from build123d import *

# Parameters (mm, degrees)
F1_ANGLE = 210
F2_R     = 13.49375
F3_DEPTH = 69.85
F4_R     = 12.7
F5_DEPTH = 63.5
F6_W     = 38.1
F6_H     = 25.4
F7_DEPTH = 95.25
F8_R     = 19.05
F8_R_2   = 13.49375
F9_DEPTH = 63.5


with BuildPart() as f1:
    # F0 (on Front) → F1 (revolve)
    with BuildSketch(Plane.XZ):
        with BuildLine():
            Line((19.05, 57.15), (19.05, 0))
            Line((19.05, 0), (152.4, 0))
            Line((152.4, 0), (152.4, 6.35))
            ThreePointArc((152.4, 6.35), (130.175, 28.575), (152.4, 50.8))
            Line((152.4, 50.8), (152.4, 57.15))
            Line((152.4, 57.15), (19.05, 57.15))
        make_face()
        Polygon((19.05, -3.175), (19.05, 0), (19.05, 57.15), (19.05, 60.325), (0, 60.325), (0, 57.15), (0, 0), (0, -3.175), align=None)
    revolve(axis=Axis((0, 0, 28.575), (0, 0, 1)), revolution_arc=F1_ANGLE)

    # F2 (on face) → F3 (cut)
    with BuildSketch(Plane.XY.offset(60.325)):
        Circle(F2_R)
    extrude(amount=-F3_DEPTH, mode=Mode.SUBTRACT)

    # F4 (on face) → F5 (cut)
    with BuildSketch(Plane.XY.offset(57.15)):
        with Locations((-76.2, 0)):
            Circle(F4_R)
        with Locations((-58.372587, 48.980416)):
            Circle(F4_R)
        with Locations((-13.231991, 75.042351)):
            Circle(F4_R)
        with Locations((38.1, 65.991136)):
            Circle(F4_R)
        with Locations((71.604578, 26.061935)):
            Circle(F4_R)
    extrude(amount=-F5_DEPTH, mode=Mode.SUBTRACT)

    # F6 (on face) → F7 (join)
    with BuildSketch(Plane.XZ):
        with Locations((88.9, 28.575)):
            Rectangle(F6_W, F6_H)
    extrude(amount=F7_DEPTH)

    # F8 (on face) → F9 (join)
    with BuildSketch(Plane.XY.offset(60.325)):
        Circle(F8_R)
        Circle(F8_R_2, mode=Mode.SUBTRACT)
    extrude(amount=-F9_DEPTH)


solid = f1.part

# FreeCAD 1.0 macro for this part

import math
import FreeCAD as App
import Part
import Sketcher
Q = App.Units.Quantity

doc = App.newDocument("Part")
params = doc.addObject("Spreadsheet::Sheet", "Params")
for row, (alias, value) in enumerate([
    ("sketch1_height", "2.5 in"),
    ("sketch1_radius", "0.875 in"),
    ("sketch1_width", "5.25 in"),
    ("revolution_angle", "210 deg"),
    ("sketch2_diameter", "1.0625 in"),
    ("pocket1_length", "2.75 in"),
    ("sketch3_diameter", "1 in"),
    ("pocket2_length", "2.5 in"),
    ("sketch4_height", "1 in"),
    ("sketch4_width", "1.5 in"),
    ("pad1_length", "3.75 in"),
    ("sketch5_diameter", "1.5 in"),
    ("sketch5_diameter2", "1.0625 in"),
    ("pad2_length", "2.5 in"),
], start=1):
    params.set(f"A{row}", alias)
    params.set(f"B{row}", "=" + value)
    params.setAlias(f"B{row}", alias)

body = doc.addObject("PartDesign::Body", "Body")

# Sketch on XZ plane
sketch1 = body.newObject("Sketcher::SketchObject", "Sketch")
sketch1.AttachmentSupport = (doc.getObject("XZ_Plane"), [""])
sketch1.MapMode = "FlatFace"
sketch1.addGeometry([
    Part.LineSegment(App.Vector(19.05, 0, 0), App.Vector(152.4, 0, 0)),  # 0
    Part.LineSegment(App.Vector(152.4, 0, 0), App.Vector(152.4, 6.35, 0)),  # 1
    Part.ArcOfCircle(Part.Circle(App.Vector(152.4, 28.575, 0), App.Vector(0, 0, 1), 22.225), math.radians(90), math.radians(270)),  # 2
    Part.LineSegment(App.Vector(152.4, 50.8, 0), App.Vector(152.4, 57.15, 0)),  # 3
    Part.LineSegment(App.Vector(152.4, 57.15, 0), App.Vector(19.05, 57.15, 0)),  # 4
    Part.LineSegment(App.Vector(19.05, 57.15, 0), App.Vector(19.05, 60.325, 0)),  # 5
    Part.LineSegment(App.Vector(19.05, 60.325, 0), App.Vector(0, 60.325, 0)),  # 6
    Part.LineSegment(App.Vector(0, 60.325, 0), App.Vector(0, -3.175, 0)),  # 7
    Part.LineSegment(App.Vector(0, -3.175, 0), App.Vector(19.05, -3.175, 0)),  # 8
    Part.LineSegment(App.Vector(19.05, -3.175, 0), App.Vector(19.05, 0, 0)),  # 9
], False)
sketch1.addConstraint([
    Sketcher.Constraint("Coincident", 0, 2, 1, 1),
    Sketcher.Constraint("Coincident", 1, 2, 2, 2),
    Sketcher.Constraint("Coincident", 2, 1, 3, 1),
    Sketcher.Constraint("Coincident", 3, 2, 4, 1),
    Sketcher.Constraint("Coincident", 4, 2, 5, 1),
    Sketcher.Constraint("Coincident", 5, 2, 6, 1),
    Sketcher.Constraint("Coincident", 6, 2, 7, 1),
    Sketcher.Constraint("Coincident", 7, 2, 8, 1),
    Sketcher.Constraint("Coincident", 8, 2, 9, 1),
    Sketcher.Constraint("Coincident", 9, 2, 0, 1),
    Sketcher.Constraint("Horizontal", 0),
    Sketcher.Constraint("Vertical", 1),
    Sketcher.Constraint("Vertical", 3),
    Sketcher.Constraint("Horizontal", 4),
    Sketcher.Constraint("Vertical", 5),
    Sketcher.Constraint("Horizontal", 6),
    Sketcher.Constraint("Vertical", 7),
    Sketcher.Constraint("Horizontal", 8),
    Sketcher.Constraint("Vertical", 9),
    Sketcher.Constraint("PointOnObject", 0, 2, -1),
    Sketcher.Constraint("PointOnObject", 6, 2, -2),
    Sketcher.Constraint("Vertical", 2, 3, 0, 2),
    Sketcher.Constraint("Vertical", 1, 2, 2, 1),
    Sketcher.Constraint("Vertical", 5, 2, 8, 2),
    Sketcher.Constraint("Equal", 1, 3),
    Sketcher.Constraint("Equal", 5, 9),
    Sketcher.Constraint("DistanceY", 7, 2, 7, 1, Q("2.5 in")),
    Sketcher.Constraint("DistanceX", -1, 1, 2, 3, Q("6 in")),
    Sketcher.Constraint("DistanceY", -1, 1, 2, 1, Q("2 in")),
    Sketcher.Constraint("Radius", 2, Q("0.875 in")),
    Sketcher.Constraint("DistanceX", 0, 1, 0, 2, Q("5.25 in")),
])
sketch1.setExpression("Constraints[26]", "Params.sketch1_height")
sketch1.setExpression("Constraints[29]", "Params.sketch1_radius")
sketch1.setExpression("Constraints[30]", "Params.sketch1_width")
revolution = body.newObject("PartDesign::Revolution", "Revolution")
revolution.Profile = sketch1
revolution.ReferenceAxis = (sketch1, ["V_Axis"])
revolution.setExpression("Angle", "Params.revolution_angle")

# Sketch on XY plane
sketch2 = body.newObject("Sketcher::SketchObject", "Sketch001")
sketch2.AttachmentSupport = (doc.getObject("XY_Plane"), [""])
sketch2.MapMode = "FlatFace"
sketch2.AttachmentOffset = App.Placement(App.Vector(0, 0, 2.375 * 25.4), App.Rotation())
sketch2.addGeometry(Part.Circle(App.Vector(0, 0, 0), App.Vector(0, 0, 1), 13.49375), False)
sketch2.addConstraint([
    Sketcher.Constraint("Coincident", 0, 3, -1, 1),
    Sketcher.Constraint("Diameter", 0, Q("1.0625 in")),
])
sketch2.setExpression("Constraints[1]", "Params.sketch2_diameter")
pocket1 = body.newObject("PartDesign::Pocket", "Pocket")
pocket1.Profile = sketch2
pocket1.setExpression("Length", "Params.pocket1_length")

# Sketch on XY plane
sketch3 = body.newObject("Sketcher::SketchObject", "Sketch002")
sketch3.AttachmentSupport = (doc.getObject("XY_Plane"), [""])
sketch3.MapMode = "FlatFace"
sketch3.AttachmentOffset = App.Placement(App.Vector(0, 0, 2.25 * 25.4), App.Rotation())
sketch3.addGeometry([
    Part.Circle(App.Vector(-76.2, 0, 0), App.Vector(0, 0, 1), 12.7),  # 0
    Part.Circle(App.Vector(-58.372587, 48.980416, 0), App.Vector(0, 0, 1), 12.7),  # 1
    Part.Circle(App.Vector(-13.231991, 75.042351, 0), App.Vector(0, 0, 1), 12.7),  # 2
    Part.Circle(App.Vector(38.1, 65.991136, 0), App.Vector(0, 0, 1), 12.7),  # 3
    Part.Circle(App.Vector(71.604578, 26.061935, 0), App.Vector(0, 0, 1), 12.7),  # 4
], False)
sketch3.addConstraint([
    Sketcher.Constraint("Equal", 0, 1),
    Sketcher.Constraint("Equal", 1, 2),
    Sketcher.Constraint("Equal", 2, 3),
    Sketcher.Constraint("Equal", 3, 4),
    Sketcher.Constraint("PointOnObject", 0, 3, -1),
    Sketcher.Constraint("Diameter", 0, Q("1 in")),
    Sketcher.Constraint("DistanceX", 0, 3, -1, 1, Q("3 in")),
    Sketcher.Constraint("DistanceX", -1, 1, 3, 3, Q("1.5 in")),
    Sketcher.Constraint("DistanceY", 4, 3, 3, 3, Q("39.929201 mm")),
    Sketcher.Constraint("DistanceX", 2, 3, -1, 1, Q("13.231991 mm")),
    Sketcher.Constraint("DistanceY", -1, 1, 2, 3, Q("75.042351 mm")),
    Sketcher.Constraint("DistanceX", -1, 1, 4, 3, Q("71.604578 mm")),
    Sketcher.Constraint("DistanceY", 1, 3, 3, 3, Q("17.01072 mm")),
    Sketcher.Constraint("DistanceX", 1, 3, -1, 1, Q("58.372587 mm")),
    Sketcher.Constraint("DistanceY", -1, 1, 1, 3, Q("48.980416 mm")),
])
sketch3.setExpression("Constraints[5]", "Params.sketch3_diameter")
pocket2 = body.newObject("PartDesign::Pocket", "Pocket001")
pocket2.Profile = sketch3
pocket2.setExpression("Length", "Params.pocket2_length")

# Sketch on XZ plane
sketch4 = body.newObject("Sketcher::SketchObject", "Sketch003")
sketch4.AttachmentSupport = (doc.getObject("XZ_Plane"), [""])
sketch4.MapMode = "FlatFace"
sketch4.addGeometry([
    Part.LineSegment(App.Vector(69.85, 41.275, 0), App.Vector(69.85, 15.875, 0)),
    Part.LineSegment(App.Vector(69.85, 15.875, 0), App.Vector(107.95, 15.875, 0)),
    Part.LineSegment(App.Vector(107.95, 15.875, 0), App.Vector(107.95, 41.275, 0)),
    Part.LineSegment(App.Vector(107.95, 41.275, 0), App.Vector(69.85, 41.275, 0)),
], False)
sketch4.addConstraint([
    Sketcher.Constraint("Coincident", 0, 2, 1, 1),
    Sketcher.Constraint("Coincident", 1, 2, 2, 1),
    Sketcher.Constraint("Coincident", 2, 2, 3, 1),
    Sketcher.Constraint("Coincident", 3, 2, 0, 1),
    Sketcher.Constraint("Vertical", 0),
    Sketcher.Constraint("Horizontal", 1),
    Sketcher.Constraint("Vertical", 2),
    Sketcher.Constraint("Horizontal", 3),
    Sketcher.Constraint("DistanceY", 0, 2, 0, 1, Q("1 in")),
    Sketcher.Constraint("DistanceX", 1, 1, 1, 2, Q("1.5 in")),
    Sketcher.Constraint("DistanceX", -1, 1, 0, 2, Q("2.75 in")),
    Sketcher.Constraint("DistanceY", -1, 1, 0, 2, Q("0.625 in")),
])
sketch4.setExpression("Constraints[8]", "Params.sketch4_height")
sketch4.setExpression("Constraints[9]", "Params.sketch4_width")
pad1 = body.newObject("PartDesign::Pad", "Pad")
pad1.Profile = sketch4
pad1.setExpression("Length", "Params.pad1_length")

# Sketch on XY plane
sketch5 = body.newObject("Sketcher::SketchObject", "Sketch004")
sketch5.AttachmentSupport = (doc.getObject("XY_Plane"), [""])
sketch5.MapMode = "FlatFace"
sketch5.AttachmentOffset = App.Placement(App.Vector(0, 0, 2.375 * 25.4), App.Rotation())
sketch5.addGeometry([
    Part.Circle(App.Vector(0, 0, 0), App.Vector(0, 0, 1), 19.05),
    Part.Circle(App.Vector(0, 0, 0), App.Vector(0, 0, 1), 13.49375),
], False)
sketch5.addConstraint([
    Sketcher.Constraint("Coincident", 0, 3, -1, 1),
    Sketcher.Constraint("Coincident", 1, 3, -1, 1),
    Sketcher.Constraint("Diameter", 0, Q("1.5 in")),
    Sketcher.Constraint("Diameter", 1, Q("1.0625 in")),
])
sketch5.setExpression("Constraints[2]", "Params.sketch5_diameter")
sketch5.setExpression("Constraints[3]", "Params.sketch5_diameter2")
pad2 = body.newObject("PartDesign::Pad", "Pad001")
pad2.Profile = sketch5
pad2.setExpression("Length", "Params.pad2_length")
pad2.Reversed = True

doc.recompute()
